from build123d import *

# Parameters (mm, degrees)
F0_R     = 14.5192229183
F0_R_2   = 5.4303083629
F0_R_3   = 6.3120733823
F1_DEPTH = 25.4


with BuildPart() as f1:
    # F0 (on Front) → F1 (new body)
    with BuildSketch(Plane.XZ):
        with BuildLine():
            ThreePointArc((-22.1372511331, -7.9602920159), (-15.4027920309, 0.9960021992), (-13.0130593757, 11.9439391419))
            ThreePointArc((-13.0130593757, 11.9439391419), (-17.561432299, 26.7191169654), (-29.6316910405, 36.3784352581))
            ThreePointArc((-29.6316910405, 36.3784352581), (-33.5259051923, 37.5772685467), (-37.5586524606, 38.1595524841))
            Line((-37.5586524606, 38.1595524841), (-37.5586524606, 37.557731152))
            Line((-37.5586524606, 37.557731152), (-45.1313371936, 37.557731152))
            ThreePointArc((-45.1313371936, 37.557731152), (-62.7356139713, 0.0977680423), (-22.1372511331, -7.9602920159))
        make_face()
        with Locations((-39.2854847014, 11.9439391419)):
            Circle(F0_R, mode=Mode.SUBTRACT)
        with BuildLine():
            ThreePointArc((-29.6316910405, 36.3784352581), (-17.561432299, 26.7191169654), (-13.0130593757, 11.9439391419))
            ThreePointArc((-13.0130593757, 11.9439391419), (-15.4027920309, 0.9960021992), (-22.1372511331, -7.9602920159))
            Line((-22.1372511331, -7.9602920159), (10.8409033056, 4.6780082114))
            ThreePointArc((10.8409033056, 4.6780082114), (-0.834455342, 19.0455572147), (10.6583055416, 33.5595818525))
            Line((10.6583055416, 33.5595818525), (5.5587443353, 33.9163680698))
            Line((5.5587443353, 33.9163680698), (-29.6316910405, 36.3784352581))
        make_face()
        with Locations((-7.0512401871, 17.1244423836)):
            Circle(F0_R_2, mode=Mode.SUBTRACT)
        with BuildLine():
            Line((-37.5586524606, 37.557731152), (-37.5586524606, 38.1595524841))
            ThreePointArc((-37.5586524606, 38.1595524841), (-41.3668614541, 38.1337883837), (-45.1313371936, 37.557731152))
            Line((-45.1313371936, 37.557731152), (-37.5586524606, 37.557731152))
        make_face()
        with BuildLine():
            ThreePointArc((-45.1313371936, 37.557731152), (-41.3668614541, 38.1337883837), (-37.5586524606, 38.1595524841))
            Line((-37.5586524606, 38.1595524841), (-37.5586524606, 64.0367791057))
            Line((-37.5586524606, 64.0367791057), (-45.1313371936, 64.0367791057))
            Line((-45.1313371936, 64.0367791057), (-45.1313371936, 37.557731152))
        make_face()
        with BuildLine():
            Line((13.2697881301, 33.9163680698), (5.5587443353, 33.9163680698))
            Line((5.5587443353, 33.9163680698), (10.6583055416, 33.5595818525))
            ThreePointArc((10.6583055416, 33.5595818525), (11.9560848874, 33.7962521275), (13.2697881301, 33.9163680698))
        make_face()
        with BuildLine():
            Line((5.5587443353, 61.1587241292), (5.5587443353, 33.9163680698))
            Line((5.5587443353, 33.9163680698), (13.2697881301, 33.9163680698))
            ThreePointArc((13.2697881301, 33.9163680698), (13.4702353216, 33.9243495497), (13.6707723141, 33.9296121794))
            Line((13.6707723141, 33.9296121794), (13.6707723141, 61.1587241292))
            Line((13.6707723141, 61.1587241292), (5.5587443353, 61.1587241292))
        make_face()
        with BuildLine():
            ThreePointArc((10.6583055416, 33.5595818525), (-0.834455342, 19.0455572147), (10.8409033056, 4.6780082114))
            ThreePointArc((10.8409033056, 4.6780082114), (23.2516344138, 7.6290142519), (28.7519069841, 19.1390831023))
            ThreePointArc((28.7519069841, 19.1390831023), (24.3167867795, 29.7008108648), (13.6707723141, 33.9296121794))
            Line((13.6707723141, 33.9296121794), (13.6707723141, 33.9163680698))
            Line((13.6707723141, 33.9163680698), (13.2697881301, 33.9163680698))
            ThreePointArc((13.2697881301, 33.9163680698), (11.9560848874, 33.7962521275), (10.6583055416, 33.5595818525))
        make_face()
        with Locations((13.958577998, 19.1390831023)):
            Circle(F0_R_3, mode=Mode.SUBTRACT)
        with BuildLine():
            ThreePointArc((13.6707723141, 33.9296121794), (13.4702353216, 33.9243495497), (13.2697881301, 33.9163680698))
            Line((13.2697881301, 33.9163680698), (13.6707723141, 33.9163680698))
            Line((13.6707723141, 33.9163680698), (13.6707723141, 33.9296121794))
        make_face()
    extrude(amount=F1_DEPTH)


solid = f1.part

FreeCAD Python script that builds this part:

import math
import FreeCAD as App
import Part
import Sketcher

V = App.Vector

doc = App.newDocument("Part")
params = doc.addObject("Spreadsheet::Sheet", "Params")
for row, (alias, value) in enumerate([
    ("pad1_length", "1 in"),
], start=1):
    params.set(f"A{row}", alias)
    params.set(f"B{row}", "=" + value)
    params.setAlias(f"B{row}", alias)

body = doc.addObject("PartDesign::Body", "Body")

sketch1 = doc.addObject("Sketcher::SketchObject", "Sketch")
body.addObject(sketch1)
sketch1.AttachmentSupport = (doc.XZ_Plane, [""])
sketch1.MapMode = "FlatFace"
sketch1.addGeometry(Part.ArcOfCircle(Part.Circle(V(14, 19, 0), V(0, 0, 1), 15), math.radians(-102), math.radians(0)), False)
sketch1.addGeometry(Part.ArcOfCircle(Part.Circle(V(14, 19, 0), V(0, 0, 1), 15), math.radians(0), math.radians(91)), False)
sketch1.addGeometry(Part.LineSegment(V(14, 34, 0), V(14, 61, 0)), False)
sketch1.addGeometry(Part.LineSegment(V(14, 61, 0), V(6, 61, 0)), False)
sketch1.addGeometry(Part.LineSegment(V(6, 61, 0), V(6, 34, 0)), False)
sketch1.addGeometry(Part.LineSegment(V(6, 34, 0), V(-30, 36, 0)), False)
sketch1.addGeometry(Part.ArcOfCircle(Part.Circle(V(-39, 12, 0), V(0, 0, 1), 26), math.radians(68.44), math.radians(86.23)), False)
sketch1.addGeometry(Part.LineSegment(V(-38, 38, 0), V(-38, 64, 0)), False)
sketch1.addGeometry(Part.LineSegment(V(-38, 64, 0), V(-45, 64, 0)), False)
sketch1.addGeometry(Part.LineSegment(V(-45, 64, 0), V(-45, 38, 0)), False)
sketch1.addGeometry(Part.ArcOfCircle(Part.Circle(V(-39, 12, 0), V(0, 0, 1), 26), math.radians(103), math.radians(311)), False)
sketch1.addGeometry(Part.LineSegment(V(-22, -8, 0), V(11, 5, 0)), False)
sketch1.addGeometry(Part.Circle(V(-39, 12, 0), V(0, 0, 1), 15), False)
sketch1.addGeometry(Part.Circle(V(-7, 17, 0), V(0, 0, 1), 5), False)
sketch1.addGeometry(Part.Circle(V(14, 19, 0), V(0, 0, 1), 6), False)
sketch1.addConstraint(Sketcher.Constraint("Tangent", 0, 2, 1, 1))
sketch1.addConstraint(Sketcher.Constraint("Coincident", 1, 2, 2, 1))
sketch1.addConstraint(Sketcher.Constraint("Coincident", 2, 2, 3, 1))
sketch1.addConstraint(Sketcher.Constraint("Coincident", 3, 2, 4, 1))
sketch1.addConstraint(Sketcher.Constraint("Coincident", 4, 2, 5, 1))
sketch1.addConstraint(Sketcher.Constraint("Coincident", 5, 2, 6, 1))
sketch1.addConstraint(Sketcher.Constraint("Coincident", 6, 2, 7, 1))
sketch1.addConstraint(Sketcher.Constraint("Coincident", 7, 2, 8, 1))
sketch1.addConstraint(Sketcher.Constraint("Coincident", 8, 2, 9, 1))
sketch1.addConstraint(Sketcher.Constraint("Coincident", 9, 2, 10, 1))
sketch1.addConstraint(Sketcher.Constraint("Coincident", 10, 2, 11, 1))
sketch1.addConstraint(Sketcher.Constraint("Coincident", 11, 2, 0, 1))
sketch1.addConstraint(Sketcher.Constraint("Vertical", 2))
sketch1.addConstraint(Sketcher.Constraint("Horizontal", 3))
sketch1.addConstraint(Sketcher.Constraint("Vertical", 4))
sketch1.addConstraint(Sketcher.Constraint("Vertical", 7))
sketch1.addConstraint(Sketcher.Constraint("Horizontal", 8))
sketch1.addConstraint(Sketcher.Constraint("Vertical", 9))
sketch1.addConstraint(Sketcher.Constraint("Coincident", 10, 3, 6, 3))
sketch1.addConstraint(Sketcher.Constraint("Coincident", 12, 3, 6, 3))
sketch1.addConstraint(Sketcher.Constraint("Coincident", 14, 3, 0, 3))
sketch1.addConstraint(Sketcher.Constraint("Equal", 0, 1))
sketch1.addConstraint(Sketcher.Constraint("Equal", 6, 10))
sketch1.addConstraint(Sketcher.Constraint("Horizontal", 14, 3, 0, 2))
sketch1.addConstraint(Sketcher.Constraint("Radius", 0, 14.793329))
sketch1.addConstraint(Sketcher.Constraint("Diameter", 12, 29.038446))
sketch1.addConstraint(Sketcher.Constraint("Diameter", 13, 10.860617))
sketch1.addConstraint(Sketcher.Constraint("Diameter", 14, 12.624147))
sketch1.addConstraint(Sketcher.Constraint("Radius", 6, 26.272425))
sketch1.addConstraint(Sketcher.Constraint("DistanceY", 2, 1, 2, 2, 27.229112))
sketch1.addConstraint(Sketcher.Constraint("Distance", 5, 35.276458))
sketch1.addConstraint(Sketcher.Constraint("DistanceX", 3, 2, 3, 1, 8.112028))
sketch1.addConstraint(Sketcher.Constraint("DistanceX", 8, 2, 8, 1, 7.572685))
sketch1.addConstraint(Sketcher.Constraint("DistanceY", 4, 2, 4, 1, 27.242356))
sketch1.addConstraint(Sketcher.Constraint("DistanceY", 7, 1, 7, 2, 25.877227))
sketch1.addConstraint(Sketcher.Constraint("DistanceY", 9, 2, 9, 1, 26.479048))
sketch1.addConstraint(Sketcher.Constraint("DistanceY", -1, 1, 6, 3, 11.943939))
sketch1.addConstraint(Sketcher.Constraint("DistanceX", 13, 3, -1, 1, 7.05124))
sketch1.addConstraint(Sketcher.Constraint("DistanceY", -1, 1, 4, 2, 33.916368))
sketch1.addConstraint(Sketcher.Constraint("DistanceX", 5, 2, -1, 1, 29.631691))
sketch1.addConstraint(Sketcher.Constraint("DistanceX", 10, 2, -1, 1, 22.137251))
sketch1.addConstraint(Sketcher.Constraint("DistanceY", -1, 1, 11, 2, 4.678008))
sketch1.addConstraint(Sketcher.Constraint("DistanceX", 13, 3, 0, 3, 21.009818))
sketch1.addConstraint(Sketcher.Constraint("DistanceY", 13, 3, 0, 3, 2.014641))
sketch1.addConstraint(Sketcher.Constraint("DistanceX", 10, 3, 0, 2, 68.037392))
pad1 = doc.addObject("PartDesign::Pad", "Pad")
body.addObject(pad1)
pad1.Profile = sketch1
pad1.setExpression("Length", "Params.pad1_length")

doc.recompute()
